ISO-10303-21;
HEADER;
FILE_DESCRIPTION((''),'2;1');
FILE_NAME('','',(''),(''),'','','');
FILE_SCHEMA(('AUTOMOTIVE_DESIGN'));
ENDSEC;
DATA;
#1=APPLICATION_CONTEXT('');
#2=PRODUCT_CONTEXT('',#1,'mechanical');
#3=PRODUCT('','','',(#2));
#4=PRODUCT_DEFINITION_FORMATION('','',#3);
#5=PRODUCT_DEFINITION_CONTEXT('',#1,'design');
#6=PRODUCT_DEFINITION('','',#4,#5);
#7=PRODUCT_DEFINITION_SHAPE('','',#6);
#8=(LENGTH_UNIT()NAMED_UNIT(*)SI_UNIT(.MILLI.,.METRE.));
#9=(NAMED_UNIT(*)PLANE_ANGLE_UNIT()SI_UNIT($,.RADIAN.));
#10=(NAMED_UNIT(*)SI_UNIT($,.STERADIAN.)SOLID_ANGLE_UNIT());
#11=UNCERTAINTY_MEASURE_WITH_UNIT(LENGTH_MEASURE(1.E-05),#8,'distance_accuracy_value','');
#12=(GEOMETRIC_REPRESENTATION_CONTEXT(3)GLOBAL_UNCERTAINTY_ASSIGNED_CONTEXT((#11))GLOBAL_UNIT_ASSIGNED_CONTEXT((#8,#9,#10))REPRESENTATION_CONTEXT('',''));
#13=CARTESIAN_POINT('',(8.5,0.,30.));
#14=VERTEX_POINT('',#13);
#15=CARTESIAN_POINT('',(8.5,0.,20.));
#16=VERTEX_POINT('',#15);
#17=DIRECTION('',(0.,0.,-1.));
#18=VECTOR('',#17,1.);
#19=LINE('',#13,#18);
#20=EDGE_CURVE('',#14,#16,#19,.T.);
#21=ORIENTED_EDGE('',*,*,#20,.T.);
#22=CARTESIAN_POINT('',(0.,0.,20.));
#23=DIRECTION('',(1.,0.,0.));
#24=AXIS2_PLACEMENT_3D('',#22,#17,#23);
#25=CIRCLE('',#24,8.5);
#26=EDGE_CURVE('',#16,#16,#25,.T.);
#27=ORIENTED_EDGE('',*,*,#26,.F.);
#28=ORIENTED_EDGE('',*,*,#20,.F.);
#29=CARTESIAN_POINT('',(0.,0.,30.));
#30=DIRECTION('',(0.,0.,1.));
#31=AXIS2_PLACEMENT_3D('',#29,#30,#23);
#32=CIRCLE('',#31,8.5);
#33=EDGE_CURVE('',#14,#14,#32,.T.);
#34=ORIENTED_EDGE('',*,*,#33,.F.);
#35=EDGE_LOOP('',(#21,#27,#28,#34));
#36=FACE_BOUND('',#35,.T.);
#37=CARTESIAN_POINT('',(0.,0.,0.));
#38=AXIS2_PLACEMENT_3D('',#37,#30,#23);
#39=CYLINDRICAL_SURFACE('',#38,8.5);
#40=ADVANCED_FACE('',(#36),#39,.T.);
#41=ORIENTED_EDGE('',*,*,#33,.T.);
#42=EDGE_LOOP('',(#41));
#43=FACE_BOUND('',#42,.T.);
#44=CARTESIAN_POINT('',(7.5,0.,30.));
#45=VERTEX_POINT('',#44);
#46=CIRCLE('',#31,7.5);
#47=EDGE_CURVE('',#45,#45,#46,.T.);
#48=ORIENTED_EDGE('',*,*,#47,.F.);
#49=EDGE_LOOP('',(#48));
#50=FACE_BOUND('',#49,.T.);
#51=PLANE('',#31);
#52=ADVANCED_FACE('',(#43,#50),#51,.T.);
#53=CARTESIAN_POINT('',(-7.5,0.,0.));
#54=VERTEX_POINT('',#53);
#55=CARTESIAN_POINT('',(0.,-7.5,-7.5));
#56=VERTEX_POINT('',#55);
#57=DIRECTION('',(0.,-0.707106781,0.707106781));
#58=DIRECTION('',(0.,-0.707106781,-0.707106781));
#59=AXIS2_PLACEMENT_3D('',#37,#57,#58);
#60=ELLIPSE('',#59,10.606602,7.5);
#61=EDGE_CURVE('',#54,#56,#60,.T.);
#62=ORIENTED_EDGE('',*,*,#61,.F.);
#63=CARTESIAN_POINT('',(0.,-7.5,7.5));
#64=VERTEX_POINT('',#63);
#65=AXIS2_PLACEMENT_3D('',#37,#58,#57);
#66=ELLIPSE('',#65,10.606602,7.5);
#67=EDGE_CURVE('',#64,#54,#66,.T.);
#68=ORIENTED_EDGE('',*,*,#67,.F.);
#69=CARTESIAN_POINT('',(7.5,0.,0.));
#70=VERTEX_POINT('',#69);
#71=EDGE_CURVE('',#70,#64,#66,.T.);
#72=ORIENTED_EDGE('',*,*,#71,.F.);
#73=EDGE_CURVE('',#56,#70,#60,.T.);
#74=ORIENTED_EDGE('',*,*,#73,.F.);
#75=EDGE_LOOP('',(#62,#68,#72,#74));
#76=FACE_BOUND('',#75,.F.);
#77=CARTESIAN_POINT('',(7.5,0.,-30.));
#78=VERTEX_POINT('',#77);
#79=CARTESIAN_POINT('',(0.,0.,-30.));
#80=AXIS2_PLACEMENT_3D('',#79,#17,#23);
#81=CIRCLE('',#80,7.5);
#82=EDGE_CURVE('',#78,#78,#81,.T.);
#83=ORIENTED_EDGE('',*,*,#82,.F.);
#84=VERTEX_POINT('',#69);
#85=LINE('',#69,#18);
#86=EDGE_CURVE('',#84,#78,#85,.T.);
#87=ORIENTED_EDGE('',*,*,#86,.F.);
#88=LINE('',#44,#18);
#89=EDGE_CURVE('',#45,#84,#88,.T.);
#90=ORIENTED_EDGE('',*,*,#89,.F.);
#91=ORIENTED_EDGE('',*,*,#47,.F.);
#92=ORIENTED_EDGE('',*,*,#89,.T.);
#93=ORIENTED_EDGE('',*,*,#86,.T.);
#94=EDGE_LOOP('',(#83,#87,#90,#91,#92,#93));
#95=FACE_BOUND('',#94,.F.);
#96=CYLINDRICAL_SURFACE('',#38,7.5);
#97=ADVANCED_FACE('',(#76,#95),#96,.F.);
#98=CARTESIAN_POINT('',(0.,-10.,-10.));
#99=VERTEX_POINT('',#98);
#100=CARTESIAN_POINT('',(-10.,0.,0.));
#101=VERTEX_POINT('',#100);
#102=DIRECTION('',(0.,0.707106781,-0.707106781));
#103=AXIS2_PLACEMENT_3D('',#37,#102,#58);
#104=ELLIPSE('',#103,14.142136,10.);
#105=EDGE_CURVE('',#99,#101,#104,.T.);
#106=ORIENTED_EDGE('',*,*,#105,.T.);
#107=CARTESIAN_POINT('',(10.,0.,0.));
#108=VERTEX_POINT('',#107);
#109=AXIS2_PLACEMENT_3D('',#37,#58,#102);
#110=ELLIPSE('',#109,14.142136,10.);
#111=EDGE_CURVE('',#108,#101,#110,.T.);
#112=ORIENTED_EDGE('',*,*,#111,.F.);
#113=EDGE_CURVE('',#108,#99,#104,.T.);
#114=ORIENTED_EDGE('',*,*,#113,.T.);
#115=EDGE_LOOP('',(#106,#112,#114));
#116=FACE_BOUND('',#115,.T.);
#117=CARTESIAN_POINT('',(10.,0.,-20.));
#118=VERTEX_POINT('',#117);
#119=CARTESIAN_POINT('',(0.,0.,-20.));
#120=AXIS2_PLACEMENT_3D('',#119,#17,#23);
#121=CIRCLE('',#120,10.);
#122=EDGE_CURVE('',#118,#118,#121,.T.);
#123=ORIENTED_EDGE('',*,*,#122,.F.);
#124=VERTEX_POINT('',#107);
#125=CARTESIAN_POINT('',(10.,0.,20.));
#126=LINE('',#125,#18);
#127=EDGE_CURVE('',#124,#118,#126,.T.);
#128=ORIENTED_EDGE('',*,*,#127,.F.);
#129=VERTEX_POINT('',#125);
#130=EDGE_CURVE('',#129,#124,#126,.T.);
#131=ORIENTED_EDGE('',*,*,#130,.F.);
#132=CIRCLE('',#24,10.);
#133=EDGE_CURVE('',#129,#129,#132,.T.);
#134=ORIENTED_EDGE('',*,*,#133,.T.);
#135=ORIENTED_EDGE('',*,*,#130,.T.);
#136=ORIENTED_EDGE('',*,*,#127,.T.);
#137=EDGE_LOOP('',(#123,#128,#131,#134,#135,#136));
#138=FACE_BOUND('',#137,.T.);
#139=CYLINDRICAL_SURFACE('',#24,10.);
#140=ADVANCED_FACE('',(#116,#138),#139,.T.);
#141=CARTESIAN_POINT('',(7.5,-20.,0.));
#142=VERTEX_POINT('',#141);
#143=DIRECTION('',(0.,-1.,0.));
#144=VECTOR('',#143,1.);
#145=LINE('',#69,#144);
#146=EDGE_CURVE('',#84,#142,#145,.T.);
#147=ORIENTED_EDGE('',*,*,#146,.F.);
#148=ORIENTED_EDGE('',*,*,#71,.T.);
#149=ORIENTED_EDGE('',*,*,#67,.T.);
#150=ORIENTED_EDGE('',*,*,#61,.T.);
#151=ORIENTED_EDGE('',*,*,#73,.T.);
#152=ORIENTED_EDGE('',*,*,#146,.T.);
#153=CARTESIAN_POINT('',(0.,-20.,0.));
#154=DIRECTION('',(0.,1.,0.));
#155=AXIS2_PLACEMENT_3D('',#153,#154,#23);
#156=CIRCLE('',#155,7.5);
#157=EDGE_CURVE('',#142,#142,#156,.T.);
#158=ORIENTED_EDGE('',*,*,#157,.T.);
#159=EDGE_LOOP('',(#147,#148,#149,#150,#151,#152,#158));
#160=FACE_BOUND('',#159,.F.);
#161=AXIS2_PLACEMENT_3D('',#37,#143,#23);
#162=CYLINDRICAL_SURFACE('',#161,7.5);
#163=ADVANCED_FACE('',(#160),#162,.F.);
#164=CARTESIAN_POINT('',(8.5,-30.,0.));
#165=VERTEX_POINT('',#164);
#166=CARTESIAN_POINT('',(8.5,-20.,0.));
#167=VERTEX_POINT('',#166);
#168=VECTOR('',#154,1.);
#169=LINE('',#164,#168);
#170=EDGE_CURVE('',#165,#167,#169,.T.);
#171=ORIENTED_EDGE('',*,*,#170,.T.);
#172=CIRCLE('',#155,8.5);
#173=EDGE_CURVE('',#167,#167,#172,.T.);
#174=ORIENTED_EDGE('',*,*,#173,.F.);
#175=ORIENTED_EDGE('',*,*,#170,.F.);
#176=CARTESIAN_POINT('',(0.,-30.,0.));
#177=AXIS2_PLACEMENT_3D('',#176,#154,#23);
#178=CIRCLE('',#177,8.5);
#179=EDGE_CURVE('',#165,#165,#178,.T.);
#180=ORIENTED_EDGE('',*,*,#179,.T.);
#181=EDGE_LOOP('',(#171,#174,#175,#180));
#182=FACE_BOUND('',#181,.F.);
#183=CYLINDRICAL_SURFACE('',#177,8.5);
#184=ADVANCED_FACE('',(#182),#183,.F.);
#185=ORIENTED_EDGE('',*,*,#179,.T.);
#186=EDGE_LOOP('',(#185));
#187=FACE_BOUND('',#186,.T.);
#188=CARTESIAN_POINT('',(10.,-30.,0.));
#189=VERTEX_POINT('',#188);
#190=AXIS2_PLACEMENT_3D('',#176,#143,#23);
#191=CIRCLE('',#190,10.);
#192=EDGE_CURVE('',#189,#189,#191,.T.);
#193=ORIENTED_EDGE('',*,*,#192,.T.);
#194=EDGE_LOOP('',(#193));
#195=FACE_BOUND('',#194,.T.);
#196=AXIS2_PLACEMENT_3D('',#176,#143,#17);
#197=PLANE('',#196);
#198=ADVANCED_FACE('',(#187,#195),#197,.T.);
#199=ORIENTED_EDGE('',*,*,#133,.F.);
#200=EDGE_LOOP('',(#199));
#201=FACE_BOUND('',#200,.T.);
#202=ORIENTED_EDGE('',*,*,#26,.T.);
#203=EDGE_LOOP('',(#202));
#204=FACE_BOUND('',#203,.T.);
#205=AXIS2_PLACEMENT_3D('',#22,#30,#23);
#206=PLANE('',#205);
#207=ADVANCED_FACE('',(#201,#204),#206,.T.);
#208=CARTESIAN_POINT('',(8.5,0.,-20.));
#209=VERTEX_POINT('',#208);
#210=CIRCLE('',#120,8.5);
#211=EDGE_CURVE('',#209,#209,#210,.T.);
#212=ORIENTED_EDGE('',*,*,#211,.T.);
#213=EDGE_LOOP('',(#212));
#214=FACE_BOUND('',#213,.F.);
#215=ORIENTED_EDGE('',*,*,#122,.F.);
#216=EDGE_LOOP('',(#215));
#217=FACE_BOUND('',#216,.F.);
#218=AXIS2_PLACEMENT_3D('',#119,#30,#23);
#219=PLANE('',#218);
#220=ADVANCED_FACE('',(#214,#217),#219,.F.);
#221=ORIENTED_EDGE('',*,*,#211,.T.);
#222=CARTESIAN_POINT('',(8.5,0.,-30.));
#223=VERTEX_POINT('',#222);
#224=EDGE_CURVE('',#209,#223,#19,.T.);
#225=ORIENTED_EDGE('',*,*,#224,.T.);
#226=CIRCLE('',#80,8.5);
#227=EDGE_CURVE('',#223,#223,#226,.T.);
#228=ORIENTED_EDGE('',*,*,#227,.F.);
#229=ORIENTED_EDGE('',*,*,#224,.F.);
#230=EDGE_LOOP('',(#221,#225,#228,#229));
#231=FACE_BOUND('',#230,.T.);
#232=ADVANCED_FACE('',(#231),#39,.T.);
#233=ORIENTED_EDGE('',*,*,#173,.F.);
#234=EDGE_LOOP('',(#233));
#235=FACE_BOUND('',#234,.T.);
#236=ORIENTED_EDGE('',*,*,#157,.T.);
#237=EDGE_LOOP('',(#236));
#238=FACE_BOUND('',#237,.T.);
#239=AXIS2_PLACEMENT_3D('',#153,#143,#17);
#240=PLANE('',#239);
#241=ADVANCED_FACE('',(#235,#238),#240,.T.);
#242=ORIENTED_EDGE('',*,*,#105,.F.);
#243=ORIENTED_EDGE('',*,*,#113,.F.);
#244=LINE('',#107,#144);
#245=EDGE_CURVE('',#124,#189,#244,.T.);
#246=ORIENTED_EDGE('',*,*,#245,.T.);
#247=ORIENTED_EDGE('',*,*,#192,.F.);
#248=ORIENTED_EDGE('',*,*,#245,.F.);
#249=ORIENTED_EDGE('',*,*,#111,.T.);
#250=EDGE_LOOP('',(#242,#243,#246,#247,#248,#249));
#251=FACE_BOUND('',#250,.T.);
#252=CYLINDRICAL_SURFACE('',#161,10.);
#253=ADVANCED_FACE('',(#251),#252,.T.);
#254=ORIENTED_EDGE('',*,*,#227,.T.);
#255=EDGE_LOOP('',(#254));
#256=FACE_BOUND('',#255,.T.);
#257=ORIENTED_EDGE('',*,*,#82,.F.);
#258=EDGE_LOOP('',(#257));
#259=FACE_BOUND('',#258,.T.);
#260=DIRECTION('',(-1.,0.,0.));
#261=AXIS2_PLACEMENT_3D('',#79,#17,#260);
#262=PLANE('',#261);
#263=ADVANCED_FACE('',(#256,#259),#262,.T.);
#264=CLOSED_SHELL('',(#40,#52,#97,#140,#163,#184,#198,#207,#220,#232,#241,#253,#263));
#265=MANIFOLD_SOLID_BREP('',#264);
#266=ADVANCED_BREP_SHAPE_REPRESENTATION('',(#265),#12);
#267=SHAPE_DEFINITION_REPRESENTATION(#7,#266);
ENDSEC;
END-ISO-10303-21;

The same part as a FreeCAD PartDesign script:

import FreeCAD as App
import Part
import Sketcher
from FreeCAD import Vector

doc = App.newDocument("Part")
body = doc.addObject("PartDesign::Body", "Body")

# Sketch on XY plane
sketch1 = body.newObject("Sketcher::SketchObject", "Sketch")
sketch1.AttachmentSupport = (doc.getObject("XY_Plane"), [""])
sketch1.MapMode = "FlatFace"
sketch1.addGeometry(Part.Circle(Vector(0, 0, 0), Vector(0, 0, 1), 8), False)
sketch1.addGeometry(Part.Circle(Vector(0, 0, 0), Vector(0, 0, 1), 8), False)
sketch1.addConstraint(Sketcher.Constraint("Coincident", 0, 3, -1, 1))
sketch1.addConstraint(Sketcher.Constraint("Coincident", 1, 3, -1, 1))
sketch1.addConstraint(Sketcher.Constraint("Diameter", 0, 17.0))
sketch1.addConstraint(Sketcher.Constraint("Diameter", 1, 15.0))

# Sketch on XZ plane
sketch2 = body.newObject("Sketcher::SketchObject", "Sketch001")
sketch2.AttachmentSupport = (doc.getObject("XZ_Plane"), [""])
sketch2.MapMode = "FlatFace"
sketch2.addGeometry(Part.LineSegment(Vector(0, 0, 0), Vector(0, 30, 0)), False)
sketch2.addConstraint(Sketcher.Constraint("Vertical", 0))
sketch2.addConstraint(Sketcher.Constraint("Coincident", 0, 1, -1, 1))
sketch2.addConstraint(Sketcher.Constraint("DistanceY", 0, 1, 0, 2, 30.0))
doc.recompute()

additivepipe = body.newObject("PartDesign::AdditivePipe", "AdditivePipe")
additivepipe.Profile = sketch1
additivepipe.Spine = (sketch2, ["Edge1"])

# Sketch on XY plane
sketch3 = body.newObject("Sketcher::SketchObject", "Sketch002")
sketch3.AttachmentSupport = (doc.getObject("XY_Plane"), [""])
sketch3.MapMode = "FlatFace"
sketch3.addGeometry(Part.Circle(Vector(0, 0, 0), Vector(0, 0, 1), 8), False)
sketch3.addGeometry(Part.Circle(Vector(0, 0, 0), Vector(0, 0, 1), 8), False)
sketch3.addConstraint(Sketcher.Constraint("Coincident", 0, 3, -1, 1))
sketch3.addConstraint(Sketcher.Constraint("Coincident", 1, 3, -1, 1))
sketch3.addConstraint(Sketcher.Constraint("Diameter", 0, 17.0))
sketch3.addConstraint(Sketcher.Constraint("Diameter", 1, 15.0))

# Sketch on XZ plane
sketch4 = body.newObject("Sketcher::SketchObject", "Sketch003")
sketch4.AttachmentSupport = (doc.getObject("XZ_Plane"), [""])
sketch4.MapMode = "FlatFace"
sketch4.addGeometry(Part.LineSegment(Vector(0, 30, 0), Vector(0, -30, 0)), False)
sketch4.addConstraint(Sketcher.Constraint("Vertical", 0))
sketch4.addConstraint(Sketcher.Constraint("Symmetric", 0, 1, 0, 2, -1, 1))
sketch4.addConstraint(Sketcher.Constraint("DistanceY", 0, 2, 0, 1, 60.0))
doc.recompute()

additivepipe2 = body.newObject("PartDesign::AdditivePipe", "AdditivePipe001")
additivepipe2.Profile = sketch3
additivepipe2.Spine = (sketch4, ["Edge1"])

# Sketch on XY plane
sketch5 = body.newObject("Sketcher::SketchObject", "Sketch004")
sketch5.AttachmentSupport = (doc.getObject("XY_Plane"), [""])
sketch5.MapMode = "FlatFace"
sketch5.addGeometry(Part.Circle(Vector(0, 0, 0), Vector(0, 0, 1), 10), False)
sketch5.addGeometry(Part.Circle(Vector(0, 0, 0), Vector(0, 0, 1), 8), False)
sketch5.addConstraint(Sketcher.Constraint("Coincident", 0, 3, -1, 1))
sketch5.addConstraint(Sketcher.Constraint("Coincident", 1, 3, -1, 1))
sketch5.addConstraint(Sketcher.Constraint("Diameter", 0, 20.0))
sketch5.addConstraint(Sketcher.Constraint("Diameter", 1, 17.0))

# Sketch on XZ plane
sketch6 = body.newObject("Sketcher::SketchObject", "Sketch005")
sketch6.AttachmentSupport = (doc.getObject("XZ_Plane"), [""])
sketch6.MapMode = "FlatFace"
sketch6.addGeometry(Part.LineSegment(Vector(0, 20, 0), Vector(0, -20, 0)), False)
sketch6.addConstraint(Sketcher.Constraint("Vertical", 0))
sketch6.addConstraint(Sketcher.Constraint("Symmetric", 0, 1, 0, 2, -1, 1))
sketch6.addConstraint(Sketcher.Constraint("DistanceY", 0, 2, 0, 1, 40.0))
doc.recompute()

additivepipe3 = body.newObject("PartDesign::AdditivePipe", "AdditivePipe002")
additivepipe3.Profile = sketch5
additivepipe3.Spine = (sketch6, ["Edge1"])

# Sketch on XZ plane
sketch7 = body.newObject("Sketcher::SketchObject", "Sketch006")
sketch7.AttachmentSupport = (doc.getObject("XZ_Plane"), [""])
sketch7.MapMode = "FlatFace"
sketch7.addGeometry(Part.Circle(Vector(0, 0, 0), Vector(0, 0, 1), 10), False)
sketch7.addConstraint(Sketcher.Constraint("Coincident", 0, 3, -1, 1))
sketch7.addConstraint(Sketcher.Constraint("Diameter", 0, 20.0))

# Sketch on XY plane
sketch8 = body.newObject("Sketcher::SketchObject", "Sketch007")
sketch8.AttachmentSupport = (doc.getObject("XY_Plane"), [""])
sketch8.MapMode = "FlatFace"
sketch8.addGeometry(Part.LineSegment(Vector(0, 0, 0), Vector(0, -30, 0)), False)
sketch8.addConstraint(Sketcher.Constraint("Vertical", 0))
sketch8.addConstraint(Sketcher.Constraint("Coincident", 0, 1, -1, 1))
sketch8.addConstraint(Sketcher.Constraint("DistanceY", 0, 2, 0, 1, 30.0))
doc.recompute()

subtractivepipe = body.newObject("PartDesign::SubtractivePipe", "SubtractivePipe")
subtractivepipe.Profile = sketch7
subtractivepipe.Spine = (sketch8, ["Edge1"])

# Sketch on XZ plane
sketch9 = body.newObject("Sketcher::SketchObject", "Sketch008")
sketch9.AttachmentSupport = (doc.getObject("XZ_Plane"), [""])
sketch9.MapMode = "FlatFace"
sketch9.addGeometry(Part.Circle(Vector(0, 0, 0), Vector(0, 0, 1), 10), False)
sketch9.addConstraint(Sketcher.Constraint("Coincident", 0, 3, -1, 1))
sketch9.addConstraint(Sketcher.Constraint("Diameter", 0, 20.0))

# Sketch on XY plane
sketch10 = body.newObject("Sketcher::SketchObject", "Sketch009")
sketch10.AttachmentSupport = (doc.getObject("XY_Plane"), [""])
sketch10.MapMode = "FlatFace"
sketch10.addGeometry(Part.LineSegment(Vector(0, 0, 0), Vector(0, -30, 0)), False)
sketch10.addConstraint(Sketcher.Constraint("Vertical", 0))
sketch10.addConstraint(Sketcher.Constraint("Coincident", 0, 1, -1, 1))
sketch10.addConstraint(Sketcher.Constraint("DistanceY", 0, 2, 0, 1, 30.0))
doc.recompute()

additivepipe4 = body.newObject("PartDesign::AdditivePipe", "AdditivePipe003")
additivepipe4.Profile = sketch9
additivepipe4.Spine = (sketch10, ["Edge1"])

# Sketch on XZ plane
sketch11 = body.newObject("Sketcher::SketchObject", "Sketch010")
sketch11.AttachmentSupport = (doc.getObject("XZ_Plane"), [""])
sketch11.MapMode = "FlatFace"
sketch11.addGeometry(Part.Circle(Vector(0, 0, 0), Vector(0, 0, 1), 8), False)
sketch11.addConstraint(Sketcher.Constraint("Coincident", 0, 3, -1, 1))
sketch11.addConstraint(Sketcher.Constraint("Diameter", 0, 15.0))

# Sketch on XY plane
sketch12 = body.newObject("Sketcher::SketchObject", "Sketch011")
sketch12.AttachmentSupport = (doc.getObject("XY_Plane"), [""])
sketch12.MapMode = "FlatFace"
sketch12.addGeometry(Part.LineSegment(Vector(0, 0, 0), Vector(0, -30, 0)), False)
sketch12.addConstraint(Sketcher.Constraint("Vertical", 0))
sketch12.addConstraint(Sketcher.Constraint("Coincident", 0, 1, -1, 1))
sketch12.addConstraint(Sketcher.Constraint("DistanceY", 0, 2, 0, 1, 30.0))
doc.recompute()

subtractivepipe2 = body.newObject("PartDesign::SubtractivePipe", "SubtractivePipe001")
subtractivepipe2.Profile = sketch11
subtractivepipe2.Spine = (sketch12, ["Edge1"])

# Sketch on XZ plane
sketch13 = body.newObject("Sketcher::SketchObject", "Sketch012")
sketch13.AttachmentSupport = (doc.getObject("XZ_Plane"), [""])
sketch13.MapMode = "FlatFace"
sketch13.AttachmentOffset = App.Placement(Vector(0, 0, 30), App.Rotation())
sketch13.addGeometry(Part.Circle(Vector(0, 0, 0), Vector(0, 0, 1), 8), False)
sketch13.addGeometry(Part.Circle(Vector(0, 0, 0), Vector(0, 0, 1), 8), False)
sketch13.addConstraint(Sketcher.Constraint("Coincident", 0, 3, -1, 1))
sketch13.addConstraint(Sketcher.Constraint("Coincident", 1, 3, -1, 1))
sketch13.addConstraint(Sketcher.Constraint("Diameter", 0, 17.0))
sketch13.addConstraint(Sketcher.Constraint("Diameter", 1, 15.0))

# Sketch on XY plane
sketch14 = body.newObject("Sketcher::SketchObject", "Sketch013")
sketch14.AttachmentSupport = (doc.getObject("XY_Plane"), [""])
sketch14.MapMode = "FlatFace"
sketch14.addGeometry(Part.LineSegment(Vector(0, -30, 0), Vector(0, -20, 0)), False)
sketch14.addConstraint(Sketcher.Constraint("Vertical", 0))
sketch14.addConstraint(Sketcher.Constraint("PointOnObject", 0, 1, -2))
sketch14.addConstraint(Sketcher.Constraint("DistanceY", 0, 1, 0, 2, 10.0))
sketch14.addConstraint(Sketcher.Constraint("DistanceY", 0, 1, -1, 1, 30.0))
doc.recompute()

subtractivepipe3 = body.newObject("PartDesign::SubtractivePipe", "SubtractivePipe002")
subtractivepipe3.Profile = sketch13
subtractivepipe3.Spine = (sketch14, ["Edge1"])

# Sketch on XY plane
sketch15 = body.newObject("Sketcher::SketchObject", "Sketch014")
sketch15.AttachmentSupport = (doc.getObject("XY_Plane"), [""])
sketch15.MapMode = "FlatFace"
sketch15.addGeometry(Part.Circle(Vector(0, 0, 0), Vector(0, 0, 1), 8), False)
sketch15.addConstraint(Sketcher.Constraint("Coincident", 0, 3, -1, 1))
sketch15.addConstraint(Sketcher.Constraint("Diameter", 0, 15.0))

# Sketch on XZ plane
sketch16 = body.newObject("Sketcher::SketchObject", "Sketch015")
sketch16.AttachmentSupport = (doc.getObject("XZ_Plane"), [""])
sketch16.MapMode = "FlatFace"
sketch16.addGeometry(Part.LineSegment(Vector(0, 20, 0), Vector(0, -20, 0)), False)
sketch16.addConstraint(Sketcher.Constraint("Vertical", 0))
sketch16.addConstraint(Sketcher.Constraint("Symmetric", 0, 1, 0, 2, -1, 1))
sketch16.addConstraint(Sketcher.Constraint("DistanceY", 0, 2, 0, 1, 40.0))
doc.recompute()

subtractivepipe4 = body.newObject("PartDesign::SubtractivePipe", "SubtractivePipe003")
subtractivepipe4.Profile = sketch15
subtractivepipe4.Spine = (sketch16, ["Edge1"])

# Sketch on XY plane
sketch17 = body.newObject("Sketcher::SketchObject", "Sketch016")
sketch17.AttachmentSupport = (doc.getObject("XY_Plane"), [""])
sketch17.MapMode = "FlatFace"
sketch17.addGeometry(Part.Circle(Vector(0, 0, 0), Vector(0, 0, 1), 8), False)
sketch17.addConstraint(Sketcher.Constraint("Coincident", 0, 3, -1, 1))
sketch17.addConstraint(Sketcher.Constraint("Diameter", 0, 15.0))

# Sketch on XZ plane
sketch18 = body.newObject("Sketcher::SketchObject", "Sketch017")
sketch18.AttachmentSupport = (doc.getObject("XZ_Plane"), [""])
sketch18.MapMode = "FlatFace"
sketch18.addGeometry(Part.LineSegment(Vector(0, 30, 0), Vector(0, -30, 0)), False)
sketch18.addConstraint(Sketcher.Constraint("Vertical", 0))
sketch18.addConstraint(Sketcher.Constraint("Symmetric", 0, 1, 0, 2, -1, 1))
sketch18.addConstraint(Sketcher.Constraint("DistanceY", 0, 2, 0, 1, 60.0))
doc.recompute()

subtractivepipe5 = body.newObject("PartDesign::SubtractivePipe", "SubtractivePipe004")
subtractivepipe5.Profile = sketch17
subtractivepipe5.Spine = (sketch18, ["Edge1"])

doc.recompute()
